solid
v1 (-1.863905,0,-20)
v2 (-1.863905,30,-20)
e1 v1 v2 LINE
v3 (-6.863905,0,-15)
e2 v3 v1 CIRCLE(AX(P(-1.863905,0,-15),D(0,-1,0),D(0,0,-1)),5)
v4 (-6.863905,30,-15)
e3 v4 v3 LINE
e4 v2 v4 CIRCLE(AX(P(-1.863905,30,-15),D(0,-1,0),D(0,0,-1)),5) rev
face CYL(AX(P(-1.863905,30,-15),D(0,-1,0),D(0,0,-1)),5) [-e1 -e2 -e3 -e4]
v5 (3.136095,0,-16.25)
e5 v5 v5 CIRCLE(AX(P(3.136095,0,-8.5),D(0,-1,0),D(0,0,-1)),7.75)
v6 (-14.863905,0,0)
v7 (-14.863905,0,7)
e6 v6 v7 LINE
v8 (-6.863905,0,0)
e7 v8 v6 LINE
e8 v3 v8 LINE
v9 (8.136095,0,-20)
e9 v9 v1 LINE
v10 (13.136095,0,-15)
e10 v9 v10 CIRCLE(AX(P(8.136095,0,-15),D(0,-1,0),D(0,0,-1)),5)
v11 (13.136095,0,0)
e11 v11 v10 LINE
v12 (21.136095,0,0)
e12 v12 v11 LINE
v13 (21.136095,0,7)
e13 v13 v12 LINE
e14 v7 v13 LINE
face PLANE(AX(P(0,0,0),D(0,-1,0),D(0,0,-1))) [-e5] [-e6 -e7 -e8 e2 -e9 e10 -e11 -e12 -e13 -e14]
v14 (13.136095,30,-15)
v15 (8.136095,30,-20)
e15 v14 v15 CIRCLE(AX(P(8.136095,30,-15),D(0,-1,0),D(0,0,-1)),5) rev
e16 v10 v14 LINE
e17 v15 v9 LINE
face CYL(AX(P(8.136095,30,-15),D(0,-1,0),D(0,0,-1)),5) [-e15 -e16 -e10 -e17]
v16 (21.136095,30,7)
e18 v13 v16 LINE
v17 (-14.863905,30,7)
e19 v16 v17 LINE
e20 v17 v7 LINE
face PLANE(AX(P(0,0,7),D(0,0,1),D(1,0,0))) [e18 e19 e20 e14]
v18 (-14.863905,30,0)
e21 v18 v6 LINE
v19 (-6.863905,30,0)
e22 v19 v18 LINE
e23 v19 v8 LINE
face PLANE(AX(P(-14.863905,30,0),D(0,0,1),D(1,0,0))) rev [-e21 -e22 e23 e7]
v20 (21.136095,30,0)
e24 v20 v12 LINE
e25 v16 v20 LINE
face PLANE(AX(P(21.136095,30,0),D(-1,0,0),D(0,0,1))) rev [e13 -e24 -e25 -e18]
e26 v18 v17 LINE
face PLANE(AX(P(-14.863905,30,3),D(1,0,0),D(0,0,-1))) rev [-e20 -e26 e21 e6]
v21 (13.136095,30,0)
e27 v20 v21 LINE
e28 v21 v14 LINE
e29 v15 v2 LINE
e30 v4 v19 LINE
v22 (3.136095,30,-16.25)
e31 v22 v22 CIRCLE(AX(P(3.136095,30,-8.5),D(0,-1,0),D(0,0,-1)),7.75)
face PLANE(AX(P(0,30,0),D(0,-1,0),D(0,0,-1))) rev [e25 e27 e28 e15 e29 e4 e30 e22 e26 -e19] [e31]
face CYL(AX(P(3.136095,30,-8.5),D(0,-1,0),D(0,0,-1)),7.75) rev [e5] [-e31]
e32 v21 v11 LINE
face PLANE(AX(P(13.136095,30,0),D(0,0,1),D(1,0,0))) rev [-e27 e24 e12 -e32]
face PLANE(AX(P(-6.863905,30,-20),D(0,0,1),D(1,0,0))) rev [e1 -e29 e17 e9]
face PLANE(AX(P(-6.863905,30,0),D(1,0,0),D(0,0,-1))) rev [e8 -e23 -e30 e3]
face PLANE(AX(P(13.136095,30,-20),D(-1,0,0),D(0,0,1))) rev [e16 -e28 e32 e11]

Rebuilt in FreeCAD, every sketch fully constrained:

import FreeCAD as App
import Part
import Sketcher

V = App.Vector
Q = App.Units.Quantity


def edges_at(feature, points):
    """Names of the edges that pass closest to the given points."""
    edges = feature.Shape.Edges
    near = lambda p: min(range(len(edges)), key=lambda i: edges[i].distToShape(Part.Vertex(*p))[0])
    return sorted({f"Edge{near(p) + 1}" for p in points})


def add_polygon(sketch, points):
    """Adds a closed chain of lines whose ends are joined by coincident constraints."""
    first, n = sketch.GeometryCount, len(points)
    for a, b in zip(points, points[1:] + points[:1]):
        sketch.addGeometry(Part.LineSegment(App.Vector(*a, 0), App.Vector(*b, 0)), False)
    for i in range(n):
        sketch.addConstraint(Sketcher.Constraint("Coincident", first + i, 2, first + (i + 1) % n, 1))

doc = App.newDocument("Part")
body = doc.addObject("PartDesign::Body", "Body")

# Sketch on XZ plane
sketch1 = body.newObject("Sketcher::SketchObject", "Sketch")
sketch1.AttachmentSupport = (doc.getObject("XZ_Plane"), [""])
sketch1.MapMode = "FlatFace"
add_polygon(sketch1, [(-6.9, 0), (-14.9, 0), (-14.9, 3), (21.1, 3), (21.1, 0), (13.1, 0), (13.1, -20), (-6.9, -20)])  # lines 0-7
sketch1.addConstraint([
    Sketcher.Constraint("Horizontal", 0),
    Sketcher.Constraint("Vertical", 1),
    Sketcher.Constraint("Horizontal", 2),
    Sketcher.Constraint("Vertical", 3),
    Sketcher.Constraint("Horizontal", 4),
    Sketcher.Constraint("Vertical", 5),
    Sketcher.Constraint("Horizontal", 6),
    Sketcher.Constraint("Vertical", 7),
    Sketcher.Constraint("PointOnObject", 0, 2, -1),
    Sketcher.Constraint("PointOnObject", 3, 2, -1),
    Sketcher.Constraint("Equal", 0, 4),
    Sketcher.Constraint("Equal", 6, 5),
    Sketcher.Constraint("DistanceX", 0, 2, 0, 1, Q("8 mm")),
    Sketcher.Constraint("DistanceX", 2, 1, 2, 2, Q("36 mm")),
    Sketcher.Constraint("DistanceY", 1, 1, 1, 2, Q("3 mm")),
    Sketcher.Constraint("DistanceX", 0, 2, -1, 1, Q("14.863905 mm")),
])
pad1 = body.newObject("PartDesign::Pad", "Pad")
pad1.Profile = sketch1
pad1.Length = 30
pad1.Reversed = True

# Sketch on XZ plane
sketch2 = body.newObject("Sketcher::SketchObject", "Sketch001")
sketch2.AttachmentSupport = (doc.getObject("XZ_Plane"), [""])
sketch2.MapMode = "FlatFace"
sketch2.addGeometry(Part.Circle(V(3, -8, 0), V(0, 0, 1), 8), False)
sketch2.addConstraint([
    Sketcher.Constraint("Diameter", 0, Q("15.5 mm")),
    Sketcher.Constraint("DistanceY", 0, 3, -1, 1, Q("8.5 mm")),
    Sketcher.Constraint("DistanceX", -1, 1, 0, 3, Q("3.136095 mm")),
])
pocket1 = body.newObject("PartDesign::Pocket", "Pocket")
pocket1.Profile = sketch2
pocket1.Length = 30
doc.recompute()

fillet = body.newObject("PartDesign::Fillet", "Fillet")
fillet.Base = (pocket1, edges_at(pocket1, [(-6.864, 15, -20), (13.136, 15, -20)]))
fillet.Radius = 5

# Sketch on XY plane
sketch3 = body.newObject("Sketcher::SketchObject", "Sketch002")
sketch3.AttachmentSupport = (doc.getObject("XY_Plane"), [""])
sketch3.MapMode = "FlatFace"
sketch3.AttachmentOffset = App.Placement(V(0, 0, 3), App.Rotation())
add_polygon(sketch3, [(-15, 30), (-15, 0), (21, 0), (21, 30)])  # lines 0-3
sketch3.addConstraint([
    Sketcher.Constraint("Vertical", 0),
    Sketcher.Constraint("Horizontal", 1),
    Sketcher.Constraint("Vertical", 2),
    Sketcher.Constraint("Horizontal", 3),
    Sketcher.Constraint("PointOnObject", 0, 2, -1),
    Sketcher.Constraint("DistanceX", 1, 1, 1, 2, Q("36 mm")),
    Sketcher.Constraint("DistanceY", 0, 2, 0, 1, Q("30 mm")),
    Sketcher.Constraint("DistanceX", 0, 2, -1, 1, Q("14.863905 mm")),
])
pad2 = body.newObject("PartDesign::Pad", "Pad001")
pad2.Profile = sketch3
pad2.Length = 4

doc.recompute()
